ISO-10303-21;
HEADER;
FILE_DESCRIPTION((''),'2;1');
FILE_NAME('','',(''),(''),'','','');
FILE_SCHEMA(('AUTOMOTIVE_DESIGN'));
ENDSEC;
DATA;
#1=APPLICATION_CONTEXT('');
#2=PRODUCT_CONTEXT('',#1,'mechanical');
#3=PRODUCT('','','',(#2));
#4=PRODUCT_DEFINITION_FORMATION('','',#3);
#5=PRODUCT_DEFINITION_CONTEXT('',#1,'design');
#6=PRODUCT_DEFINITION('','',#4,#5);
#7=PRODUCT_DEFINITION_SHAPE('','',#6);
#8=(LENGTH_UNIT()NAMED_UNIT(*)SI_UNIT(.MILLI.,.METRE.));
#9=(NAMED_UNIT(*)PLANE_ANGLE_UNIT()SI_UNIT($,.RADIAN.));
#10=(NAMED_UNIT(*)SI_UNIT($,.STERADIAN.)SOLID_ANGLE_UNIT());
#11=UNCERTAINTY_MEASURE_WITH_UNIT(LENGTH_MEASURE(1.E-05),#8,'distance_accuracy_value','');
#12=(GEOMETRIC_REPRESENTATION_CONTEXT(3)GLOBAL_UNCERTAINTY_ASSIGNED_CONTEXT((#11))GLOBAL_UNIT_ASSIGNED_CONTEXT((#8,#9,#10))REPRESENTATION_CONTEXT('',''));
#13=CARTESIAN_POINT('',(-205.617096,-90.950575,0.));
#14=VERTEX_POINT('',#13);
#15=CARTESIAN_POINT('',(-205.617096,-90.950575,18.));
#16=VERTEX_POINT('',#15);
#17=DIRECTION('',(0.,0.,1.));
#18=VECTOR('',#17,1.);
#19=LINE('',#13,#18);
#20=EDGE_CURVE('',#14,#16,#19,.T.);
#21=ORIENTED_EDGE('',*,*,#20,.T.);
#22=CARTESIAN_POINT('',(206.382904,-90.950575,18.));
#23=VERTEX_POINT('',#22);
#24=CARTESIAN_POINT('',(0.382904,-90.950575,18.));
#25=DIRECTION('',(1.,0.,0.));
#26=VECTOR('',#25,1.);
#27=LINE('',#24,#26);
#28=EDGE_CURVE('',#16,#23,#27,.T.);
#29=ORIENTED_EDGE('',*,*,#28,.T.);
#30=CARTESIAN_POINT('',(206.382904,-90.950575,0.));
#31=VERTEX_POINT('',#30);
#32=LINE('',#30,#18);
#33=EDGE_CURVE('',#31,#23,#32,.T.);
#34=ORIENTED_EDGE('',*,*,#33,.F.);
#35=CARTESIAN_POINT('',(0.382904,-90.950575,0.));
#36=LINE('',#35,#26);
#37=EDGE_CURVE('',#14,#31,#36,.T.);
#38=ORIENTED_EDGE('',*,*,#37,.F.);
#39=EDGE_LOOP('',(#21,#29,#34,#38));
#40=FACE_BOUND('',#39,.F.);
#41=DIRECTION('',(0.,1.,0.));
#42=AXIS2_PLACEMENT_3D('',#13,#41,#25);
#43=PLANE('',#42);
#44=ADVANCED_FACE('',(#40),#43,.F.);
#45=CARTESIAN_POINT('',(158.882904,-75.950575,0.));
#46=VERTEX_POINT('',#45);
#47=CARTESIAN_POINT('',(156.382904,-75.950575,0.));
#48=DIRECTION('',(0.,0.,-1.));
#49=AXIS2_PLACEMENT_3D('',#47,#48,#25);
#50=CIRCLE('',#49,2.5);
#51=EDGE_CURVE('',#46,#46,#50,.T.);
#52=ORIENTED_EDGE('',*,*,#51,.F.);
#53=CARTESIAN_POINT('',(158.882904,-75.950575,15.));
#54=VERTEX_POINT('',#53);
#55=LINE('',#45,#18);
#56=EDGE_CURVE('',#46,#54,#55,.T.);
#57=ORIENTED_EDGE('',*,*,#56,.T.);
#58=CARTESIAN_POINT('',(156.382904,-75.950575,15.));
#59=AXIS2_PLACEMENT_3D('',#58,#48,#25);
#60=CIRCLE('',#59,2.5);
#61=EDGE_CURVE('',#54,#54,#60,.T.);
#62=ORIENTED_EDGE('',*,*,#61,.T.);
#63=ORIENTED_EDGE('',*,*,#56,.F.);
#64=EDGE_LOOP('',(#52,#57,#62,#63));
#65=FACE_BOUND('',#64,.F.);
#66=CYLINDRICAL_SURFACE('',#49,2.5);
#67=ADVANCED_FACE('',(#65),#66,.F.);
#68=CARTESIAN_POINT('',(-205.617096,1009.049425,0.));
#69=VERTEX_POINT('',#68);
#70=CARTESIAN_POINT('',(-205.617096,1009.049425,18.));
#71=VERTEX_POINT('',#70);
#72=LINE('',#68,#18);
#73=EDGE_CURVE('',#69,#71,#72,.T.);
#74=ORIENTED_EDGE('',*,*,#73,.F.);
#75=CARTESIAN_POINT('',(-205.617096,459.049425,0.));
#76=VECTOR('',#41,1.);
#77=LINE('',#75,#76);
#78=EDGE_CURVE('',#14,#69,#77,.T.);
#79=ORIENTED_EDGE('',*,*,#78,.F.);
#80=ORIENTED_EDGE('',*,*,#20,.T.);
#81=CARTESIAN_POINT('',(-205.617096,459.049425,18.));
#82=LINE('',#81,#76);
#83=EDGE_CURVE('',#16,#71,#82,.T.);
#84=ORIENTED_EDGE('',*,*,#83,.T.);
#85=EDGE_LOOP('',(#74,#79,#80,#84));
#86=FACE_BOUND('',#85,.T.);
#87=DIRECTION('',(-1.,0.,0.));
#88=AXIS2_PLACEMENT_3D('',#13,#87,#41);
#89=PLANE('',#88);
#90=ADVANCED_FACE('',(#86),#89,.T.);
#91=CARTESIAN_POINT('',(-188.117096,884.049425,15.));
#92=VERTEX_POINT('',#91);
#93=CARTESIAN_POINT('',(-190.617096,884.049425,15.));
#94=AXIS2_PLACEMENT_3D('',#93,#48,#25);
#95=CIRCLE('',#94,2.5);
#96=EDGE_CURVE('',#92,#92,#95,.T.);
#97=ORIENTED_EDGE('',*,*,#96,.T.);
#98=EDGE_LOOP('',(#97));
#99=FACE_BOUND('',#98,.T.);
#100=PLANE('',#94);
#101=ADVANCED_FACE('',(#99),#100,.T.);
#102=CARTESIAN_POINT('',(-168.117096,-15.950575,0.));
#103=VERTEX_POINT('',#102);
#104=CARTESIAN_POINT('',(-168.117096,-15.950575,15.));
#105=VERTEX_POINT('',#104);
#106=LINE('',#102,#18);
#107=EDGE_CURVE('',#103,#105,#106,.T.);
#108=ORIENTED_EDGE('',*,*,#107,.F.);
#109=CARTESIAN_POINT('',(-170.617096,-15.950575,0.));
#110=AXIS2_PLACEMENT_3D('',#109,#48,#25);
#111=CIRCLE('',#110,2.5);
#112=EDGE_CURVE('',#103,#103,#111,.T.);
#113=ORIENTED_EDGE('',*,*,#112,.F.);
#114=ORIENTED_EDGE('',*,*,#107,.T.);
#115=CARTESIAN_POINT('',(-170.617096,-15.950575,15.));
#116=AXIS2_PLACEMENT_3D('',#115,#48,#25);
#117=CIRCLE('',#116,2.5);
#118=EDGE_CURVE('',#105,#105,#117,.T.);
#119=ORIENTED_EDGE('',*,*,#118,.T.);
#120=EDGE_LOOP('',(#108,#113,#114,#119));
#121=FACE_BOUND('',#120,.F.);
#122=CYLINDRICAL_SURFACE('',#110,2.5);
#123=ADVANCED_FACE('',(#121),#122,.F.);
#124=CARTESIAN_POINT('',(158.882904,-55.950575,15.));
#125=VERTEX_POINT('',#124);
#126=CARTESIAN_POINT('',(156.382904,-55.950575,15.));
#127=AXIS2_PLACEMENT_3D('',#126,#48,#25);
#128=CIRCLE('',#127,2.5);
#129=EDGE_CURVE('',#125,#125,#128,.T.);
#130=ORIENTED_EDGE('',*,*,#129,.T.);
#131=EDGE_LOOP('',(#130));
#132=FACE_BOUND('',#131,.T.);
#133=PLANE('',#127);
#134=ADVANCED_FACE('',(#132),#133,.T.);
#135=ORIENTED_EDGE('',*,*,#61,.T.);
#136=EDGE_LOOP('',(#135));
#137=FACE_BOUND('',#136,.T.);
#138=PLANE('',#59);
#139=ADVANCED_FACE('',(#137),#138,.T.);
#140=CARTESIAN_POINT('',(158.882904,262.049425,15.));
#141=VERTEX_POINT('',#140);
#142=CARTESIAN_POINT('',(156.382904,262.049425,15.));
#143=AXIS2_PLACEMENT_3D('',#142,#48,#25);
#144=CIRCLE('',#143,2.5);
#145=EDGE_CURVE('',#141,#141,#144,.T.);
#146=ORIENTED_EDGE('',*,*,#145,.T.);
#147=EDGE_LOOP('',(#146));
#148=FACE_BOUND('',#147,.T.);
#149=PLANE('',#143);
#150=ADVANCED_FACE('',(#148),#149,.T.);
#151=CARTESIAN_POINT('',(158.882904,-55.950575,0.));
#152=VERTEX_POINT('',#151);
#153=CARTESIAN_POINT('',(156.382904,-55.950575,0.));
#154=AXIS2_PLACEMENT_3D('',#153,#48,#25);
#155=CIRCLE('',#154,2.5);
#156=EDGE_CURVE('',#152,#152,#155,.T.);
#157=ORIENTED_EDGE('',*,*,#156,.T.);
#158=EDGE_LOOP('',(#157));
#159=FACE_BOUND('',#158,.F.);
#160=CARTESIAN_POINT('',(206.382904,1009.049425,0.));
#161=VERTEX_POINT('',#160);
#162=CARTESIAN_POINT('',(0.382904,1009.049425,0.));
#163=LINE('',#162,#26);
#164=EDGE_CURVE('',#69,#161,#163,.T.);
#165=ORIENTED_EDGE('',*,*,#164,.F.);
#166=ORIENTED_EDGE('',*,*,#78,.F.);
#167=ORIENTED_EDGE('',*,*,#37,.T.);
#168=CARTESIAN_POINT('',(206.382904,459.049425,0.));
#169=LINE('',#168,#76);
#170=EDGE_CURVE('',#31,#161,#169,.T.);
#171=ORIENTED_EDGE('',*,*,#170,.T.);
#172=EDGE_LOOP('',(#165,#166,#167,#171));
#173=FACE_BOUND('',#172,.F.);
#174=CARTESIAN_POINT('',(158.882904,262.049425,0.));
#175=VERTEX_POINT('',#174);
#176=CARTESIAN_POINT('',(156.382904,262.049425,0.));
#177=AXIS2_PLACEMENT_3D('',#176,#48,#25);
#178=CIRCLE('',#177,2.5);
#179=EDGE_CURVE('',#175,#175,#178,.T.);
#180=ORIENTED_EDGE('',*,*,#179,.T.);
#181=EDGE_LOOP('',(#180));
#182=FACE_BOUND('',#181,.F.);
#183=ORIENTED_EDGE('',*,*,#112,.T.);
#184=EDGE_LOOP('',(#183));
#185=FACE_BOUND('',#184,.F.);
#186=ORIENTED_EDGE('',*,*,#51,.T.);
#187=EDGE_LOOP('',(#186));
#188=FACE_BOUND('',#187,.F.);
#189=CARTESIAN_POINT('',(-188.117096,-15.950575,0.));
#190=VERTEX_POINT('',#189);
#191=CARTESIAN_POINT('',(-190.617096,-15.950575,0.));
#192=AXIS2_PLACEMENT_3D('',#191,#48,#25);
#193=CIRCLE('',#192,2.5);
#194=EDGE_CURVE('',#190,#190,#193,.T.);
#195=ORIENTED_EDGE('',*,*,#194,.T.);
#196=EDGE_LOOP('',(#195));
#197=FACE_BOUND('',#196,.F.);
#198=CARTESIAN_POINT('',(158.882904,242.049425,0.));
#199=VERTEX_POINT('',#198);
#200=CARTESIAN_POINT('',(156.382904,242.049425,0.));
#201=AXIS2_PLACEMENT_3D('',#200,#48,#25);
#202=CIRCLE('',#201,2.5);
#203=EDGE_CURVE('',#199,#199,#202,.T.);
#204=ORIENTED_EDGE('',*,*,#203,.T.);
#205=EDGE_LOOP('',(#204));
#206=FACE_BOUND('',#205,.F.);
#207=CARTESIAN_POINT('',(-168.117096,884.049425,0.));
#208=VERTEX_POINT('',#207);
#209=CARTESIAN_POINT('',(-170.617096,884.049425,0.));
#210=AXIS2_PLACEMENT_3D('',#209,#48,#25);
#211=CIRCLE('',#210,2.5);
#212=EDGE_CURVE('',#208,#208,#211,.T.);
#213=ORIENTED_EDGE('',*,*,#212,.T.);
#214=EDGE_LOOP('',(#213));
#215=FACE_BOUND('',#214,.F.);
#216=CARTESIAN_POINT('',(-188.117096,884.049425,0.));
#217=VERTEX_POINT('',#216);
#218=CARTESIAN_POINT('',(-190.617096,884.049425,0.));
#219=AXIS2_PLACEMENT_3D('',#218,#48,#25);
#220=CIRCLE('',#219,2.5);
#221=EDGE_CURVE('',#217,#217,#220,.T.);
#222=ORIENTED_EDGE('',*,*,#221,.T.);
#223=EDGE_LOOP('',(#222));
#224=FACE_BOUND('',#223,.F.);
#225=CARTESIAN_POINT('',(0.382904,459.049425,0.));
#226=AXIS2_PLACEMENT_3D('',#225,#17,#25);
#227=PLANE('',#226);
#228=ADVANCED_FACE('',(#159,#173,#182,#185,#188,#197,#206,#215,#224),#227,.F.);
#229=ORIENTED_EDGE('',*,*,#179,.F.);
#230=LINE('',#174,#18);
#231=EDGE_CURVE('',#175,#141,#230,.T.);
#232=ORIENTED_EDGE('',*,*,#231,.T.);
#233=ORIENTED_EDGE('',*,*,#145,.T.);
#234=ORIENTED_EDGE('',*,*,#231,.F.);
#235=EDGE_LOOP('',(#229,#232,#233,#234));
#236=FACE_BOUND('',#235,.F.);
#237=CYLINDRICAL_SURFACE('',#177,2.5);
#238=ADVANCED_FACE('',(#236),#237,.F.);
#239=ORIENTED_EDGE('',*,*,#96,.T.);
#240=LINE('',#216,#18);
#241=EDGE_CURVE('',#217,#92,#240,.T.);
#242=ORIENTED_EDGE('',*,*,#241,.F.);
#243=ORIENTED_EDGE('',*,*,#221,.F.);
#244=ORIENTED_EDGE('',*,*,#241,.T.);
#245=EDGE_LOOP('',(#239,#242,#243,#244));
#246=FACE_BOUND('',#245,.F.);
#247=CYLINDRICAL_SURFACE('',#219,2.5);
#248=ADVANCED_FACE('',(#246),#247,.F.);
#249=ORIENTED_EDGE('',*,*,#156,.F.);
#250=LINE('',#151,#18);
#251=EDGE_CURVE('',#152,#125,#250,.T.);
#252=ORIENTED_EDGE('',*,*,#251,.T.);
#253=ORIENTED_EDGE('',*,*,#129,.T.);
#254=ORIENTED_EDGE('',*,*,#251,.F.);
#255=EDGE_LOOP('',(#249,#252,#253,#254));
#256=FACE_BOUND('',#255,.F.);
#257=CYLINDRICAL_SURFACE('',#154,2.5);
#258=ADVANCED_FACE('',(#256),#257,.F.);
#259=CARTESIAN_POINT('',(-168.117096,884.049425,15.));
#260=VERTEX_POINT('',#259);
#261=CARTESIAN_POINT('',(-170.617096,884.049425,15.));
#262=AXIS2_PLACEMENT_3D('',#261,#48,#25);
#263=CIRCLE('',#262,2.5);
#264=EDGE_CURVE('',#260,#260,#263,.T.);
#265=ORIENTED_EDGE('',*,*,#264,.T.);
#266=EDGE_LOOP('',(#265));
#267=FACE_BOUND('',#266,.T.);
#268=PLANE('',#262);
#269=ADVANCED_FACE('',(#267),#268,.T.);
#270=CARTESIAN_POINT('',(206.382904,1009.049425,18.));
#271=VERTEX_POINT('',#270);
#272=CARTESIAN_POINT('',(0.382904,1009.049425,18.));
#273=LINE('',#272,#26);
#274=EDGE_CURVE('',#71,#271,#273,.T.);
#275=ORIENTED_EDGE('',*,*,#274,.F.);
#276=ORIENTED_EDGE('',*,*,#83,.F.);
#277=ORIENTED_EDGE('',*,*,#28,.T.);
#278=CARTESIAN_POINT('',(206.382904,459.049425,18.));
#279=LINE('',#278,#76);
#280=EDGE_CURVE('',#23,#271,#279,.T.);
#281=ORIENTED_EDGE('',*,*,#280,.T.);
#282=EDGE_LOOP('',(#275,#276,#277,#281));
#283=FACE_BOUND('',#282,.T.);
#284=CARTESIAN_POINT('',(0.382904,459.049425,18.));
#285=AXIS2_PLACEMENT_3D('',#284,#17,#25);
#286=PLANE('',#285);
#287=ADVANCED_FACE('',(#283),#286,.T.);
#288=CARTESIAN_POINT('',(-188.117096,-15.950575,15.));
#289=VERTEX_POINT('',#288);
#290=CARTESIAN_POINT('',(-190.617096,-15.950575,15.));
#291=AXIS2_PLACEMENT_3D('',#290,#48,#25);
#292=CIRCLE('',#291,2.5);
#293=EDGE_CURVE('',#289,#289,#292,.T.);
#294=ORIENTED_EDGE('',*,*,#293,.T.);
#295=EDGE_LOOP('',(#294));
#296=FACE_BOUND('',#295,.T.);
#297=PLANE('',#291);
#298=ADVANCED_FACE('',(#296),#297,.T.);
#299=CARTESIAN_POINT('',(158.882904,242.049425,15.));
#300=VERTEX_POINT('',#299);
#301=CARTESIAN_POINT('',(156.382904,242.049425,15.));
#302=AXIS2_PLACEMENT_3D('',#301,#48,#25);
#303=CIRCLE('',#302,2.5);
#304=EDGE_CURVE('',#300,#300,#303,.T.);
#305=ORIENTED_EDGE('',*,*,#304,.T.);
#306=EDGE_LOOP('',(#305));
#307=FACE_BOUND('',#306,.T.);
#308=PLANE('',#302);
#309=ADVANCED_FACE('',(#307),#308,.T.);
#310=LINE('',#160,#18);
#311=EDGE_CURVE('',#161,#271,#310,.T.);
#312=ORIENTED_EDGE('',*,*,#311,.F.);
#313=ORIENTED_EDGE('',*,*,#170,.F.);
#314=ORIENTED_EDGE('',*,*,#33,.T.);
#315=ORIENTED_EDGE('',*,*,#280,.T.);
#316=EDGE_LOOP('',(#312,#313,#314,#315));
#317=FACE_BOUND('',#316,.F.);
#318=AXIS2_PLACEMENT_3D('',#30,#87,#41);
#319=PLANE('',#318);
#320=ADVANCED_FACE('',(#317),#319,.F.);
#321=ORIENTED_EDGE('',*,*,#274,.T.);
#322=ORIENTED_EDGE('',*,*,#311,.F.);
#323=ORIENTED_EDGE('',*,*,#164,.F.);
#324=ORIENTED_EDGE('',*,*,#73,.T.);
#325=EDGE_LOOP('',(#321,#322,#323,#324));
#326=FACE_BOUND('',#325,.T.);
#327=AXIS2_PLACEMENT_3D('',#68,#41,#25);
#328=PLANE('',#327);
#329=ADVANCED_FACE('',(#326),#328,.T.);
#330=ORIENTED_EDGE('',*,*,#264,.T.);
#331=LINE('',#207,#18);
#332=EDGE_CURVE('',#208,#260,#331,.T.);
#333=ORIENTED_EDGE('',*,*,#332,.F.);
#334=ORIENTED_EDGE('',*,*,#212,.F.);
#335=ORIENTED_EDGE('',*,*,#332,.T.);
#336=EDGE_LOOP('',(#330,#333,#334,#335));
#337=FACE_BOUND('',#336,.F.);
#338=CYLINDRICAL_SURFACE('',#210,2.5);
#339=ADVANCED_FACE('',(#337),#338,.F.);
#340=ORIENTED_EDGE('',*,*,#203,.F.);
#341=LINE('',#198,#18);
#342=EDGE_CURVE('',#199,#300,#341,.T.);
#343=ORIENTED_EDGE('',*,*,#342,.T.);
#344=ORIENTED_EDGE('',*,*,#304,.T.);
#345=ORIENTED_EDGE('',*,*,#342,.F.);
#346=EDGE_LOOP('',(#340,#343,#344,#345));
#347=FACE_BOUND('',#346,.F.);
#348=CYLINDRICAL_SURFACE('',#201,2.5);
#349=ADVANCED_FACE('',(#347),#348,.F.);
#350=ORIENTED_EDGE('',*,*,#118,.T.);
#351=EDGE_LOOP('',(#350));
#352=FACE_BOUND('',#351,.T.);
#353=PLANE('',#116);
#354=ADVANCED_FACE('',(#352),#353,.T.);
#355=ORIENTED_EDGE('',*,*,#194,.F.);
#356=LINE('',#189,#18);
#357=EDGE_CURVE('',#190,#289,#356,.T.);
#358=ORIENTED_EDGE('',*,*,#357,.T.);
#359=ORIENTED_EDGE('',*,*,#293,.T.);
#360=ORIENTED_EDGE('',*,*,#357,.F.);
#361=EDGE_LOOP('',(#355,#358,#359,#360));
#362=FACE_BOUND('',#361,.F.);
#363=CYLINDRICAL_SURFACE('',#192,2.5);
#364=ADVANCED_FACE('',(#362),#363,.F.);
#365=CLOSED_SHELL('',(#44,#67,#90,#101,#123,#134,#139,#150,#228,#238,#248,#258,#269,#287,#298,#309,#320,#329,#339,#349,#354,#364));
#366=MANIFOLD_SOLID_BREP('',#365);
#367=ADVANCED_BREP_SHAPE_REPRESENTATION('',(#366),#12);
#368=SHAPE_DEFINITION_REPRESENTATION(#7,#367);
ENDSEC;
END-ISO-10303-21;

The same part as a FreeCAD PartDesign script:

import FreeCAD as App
import Part
import Sketcher
from FreeCAD import Vector
Q = App.Units.Quantity

doc = App.newDocument("Part")
body = doc.addObject("PartDesign::Body", "Body")

# Sketch on XY plane
sketch1 = doc.addObject("Sketcher::SketchObject", "Sketch")
body.addObject(sketch1)
sketch1.AttachmentSupport = (doc.XY_Plane, [""])
sketch1.MapMode = "FlatFace"
sketch1.addGeometry([
    Part.LineSegment(Vector(-206, 1009, 0), Vector(-206, -91, 0)),
    Part.LineSegment(Vector(-206, -91, 0), Vector(206, -91, 0)),
    Part.LineSegment(Vector(206, -91, 0), Vector(206, 1009, 0)),
    Part.LineSegment(Vector(206, 1009, 0), Vector(-206, 1009, 0)),
], False)
sketch1.addConstraint([
    Sketcher.Constraint("Coincident", 0, 2, 1, 1),
    Sketcher.Constraint("Coincident", 1, 2, 2, 1),
    Sketcher.Constraint("Coincident", 2, 2, 3, 1),
    Sketcher.Constraint("Coincident", 3, 2, 0, 1),
    Sketcher.Constraint("Vertical", 0),
    Sketcher.Constraint("Horizontal", 1),
    Sketcher.Constraint("Vertical", 2),
    Sketcher.Constraint("Horizontal", 3),
    Sketcher.Constraint("DistanceX", 1, 1, 1, 2, Q("412 mm")),
    Sketcher.Constraint("DistanceY", 0, 2, 0, 1, Q("1100 mm")),
    Sketcher.Constraint("DistanceX", 0, 2, -1, 1, Q("205.617096 mm")),
    Sketcher.Constraint("DistanceY", 0, 2, -1, 1, Q("90.950575 mm")),
])
pad1 = doc.addObject("PartDesign::Pad", "Pad")
body.addObject(pad1)
pad1.Profile = sketch1
pad1.Length = 18

# Sketch on XY plane
sketch2 = doc.addObject("Sketcher::SketchObject", "Sketch001")
body.addObject(sketch2)
sketch2.AttachmentSupport = (doc.XY_Plane, [""])
sketch2.MapMode = "FlatFace"
sketch2.addGeometry([
    Part.Circle(Vector(-190.6, 884, 0), Vector(0, 0, 1), 2.5),  # 0
    Part.Circle(Vector(-170.6, 884, 0), Vector(0, 0, 1), 2.5),  # 1
    Part.Circle(Vector(156.4, 262, 0), Vector(0, 0, 1), 2.5),  # 2
    Part.Circle(Vector(156.4, 242, 0), Vector(0, 0, 1), 2.5),  # 3
    Part.Circle(Vector(156.4, -56, 0), Vector(0, 0, 1), 2.5),  # 4
    Part.Circle(Vector(156.4, -76, 0), Vector(0, 0, 1), 2.5),  # 5
    Part.Circle(Vector(-170.6, -16, 0), Vector(0, 0, 1), 2.5),  # 6
    Part.Circle(Vector(-190.6, -16, 0), Vector(0, 0, 1), 2.5),  # 7
], False)
sketch2.addConstraint([
    Sketcher.Constraint("Equal", 0, 1),
    Sketcher.Constraint("Equal", 1, 2),
    Sketcher.Constraint("Equal", 2, 3),
    Sketcher.Constraint("Equal", 3, 4),
    Sketcher.Constraint("Equal", 4, 5),
    Sketcher.Constraint("Equal", 5, 6),
    Sketcher.Constraint("Equal", 6, 7),
    Sketcher.Constraint("Horizontal", 0, 3, 1, 3),
    Sketcher.Constraint("Horizontal", 6, 3, 7, 3),
    Sketcher.Constraint("Vertical", 2, 3, 3, 3),
    Sketcher.Constraint("Vertical", 3, 3, 4, 3),
    Sketcher.Constraint("Vertical", 4, 3, 5, 3),
    Sketcher.Constraint("Vertical", 1, 3, 6, 3),
    Sketcher.Constraint("Vertical", 0, 3, 7, 3),
    Sketcher.Constraint("Diameter", 0, Q("5 mm")),
    Sketcher.Constraint("DistanceX", 0, 3, 1, 3, Q("20 mm")),
    Sketcher.Constraint("DistanceX", 1, 3, 2, 3, Q("327 mm")),
    Sketcher.Constraint("DistanceY", 2, 3, 1, 3, Q("622 mm")),
    Sketcher.Constraint("DistanceY", 3, 3, 2, 3, Q("20 mm")),
    Sketcher.Constraint("DistanceY", 4, 3, 3, 3, Q("298 mm")),
    Sketcher.Constraint("DistanceY", 5, 3, 4, 3, Q("20 mm")),
    Sketcher.Constraint("DistanceY", 4, 3, 6, 3, Q("40 mm")),
    Sketcher.Constraint("DistanceX", 0, 3, -1, 1, Q("190.617096 mm")),
    Sketcher.Constraint("DistanceY", -1, 1, 0, 3, Q("884.049425 mm")),
])
pocket1 = doc.addObject("PartDesign::Pocket", "Pocket")
body.addObject(pocket1)
pocket1.Profile = sketch2
pocket1.Length = 15
pocket1.Reversed = True

doc.recompute()
